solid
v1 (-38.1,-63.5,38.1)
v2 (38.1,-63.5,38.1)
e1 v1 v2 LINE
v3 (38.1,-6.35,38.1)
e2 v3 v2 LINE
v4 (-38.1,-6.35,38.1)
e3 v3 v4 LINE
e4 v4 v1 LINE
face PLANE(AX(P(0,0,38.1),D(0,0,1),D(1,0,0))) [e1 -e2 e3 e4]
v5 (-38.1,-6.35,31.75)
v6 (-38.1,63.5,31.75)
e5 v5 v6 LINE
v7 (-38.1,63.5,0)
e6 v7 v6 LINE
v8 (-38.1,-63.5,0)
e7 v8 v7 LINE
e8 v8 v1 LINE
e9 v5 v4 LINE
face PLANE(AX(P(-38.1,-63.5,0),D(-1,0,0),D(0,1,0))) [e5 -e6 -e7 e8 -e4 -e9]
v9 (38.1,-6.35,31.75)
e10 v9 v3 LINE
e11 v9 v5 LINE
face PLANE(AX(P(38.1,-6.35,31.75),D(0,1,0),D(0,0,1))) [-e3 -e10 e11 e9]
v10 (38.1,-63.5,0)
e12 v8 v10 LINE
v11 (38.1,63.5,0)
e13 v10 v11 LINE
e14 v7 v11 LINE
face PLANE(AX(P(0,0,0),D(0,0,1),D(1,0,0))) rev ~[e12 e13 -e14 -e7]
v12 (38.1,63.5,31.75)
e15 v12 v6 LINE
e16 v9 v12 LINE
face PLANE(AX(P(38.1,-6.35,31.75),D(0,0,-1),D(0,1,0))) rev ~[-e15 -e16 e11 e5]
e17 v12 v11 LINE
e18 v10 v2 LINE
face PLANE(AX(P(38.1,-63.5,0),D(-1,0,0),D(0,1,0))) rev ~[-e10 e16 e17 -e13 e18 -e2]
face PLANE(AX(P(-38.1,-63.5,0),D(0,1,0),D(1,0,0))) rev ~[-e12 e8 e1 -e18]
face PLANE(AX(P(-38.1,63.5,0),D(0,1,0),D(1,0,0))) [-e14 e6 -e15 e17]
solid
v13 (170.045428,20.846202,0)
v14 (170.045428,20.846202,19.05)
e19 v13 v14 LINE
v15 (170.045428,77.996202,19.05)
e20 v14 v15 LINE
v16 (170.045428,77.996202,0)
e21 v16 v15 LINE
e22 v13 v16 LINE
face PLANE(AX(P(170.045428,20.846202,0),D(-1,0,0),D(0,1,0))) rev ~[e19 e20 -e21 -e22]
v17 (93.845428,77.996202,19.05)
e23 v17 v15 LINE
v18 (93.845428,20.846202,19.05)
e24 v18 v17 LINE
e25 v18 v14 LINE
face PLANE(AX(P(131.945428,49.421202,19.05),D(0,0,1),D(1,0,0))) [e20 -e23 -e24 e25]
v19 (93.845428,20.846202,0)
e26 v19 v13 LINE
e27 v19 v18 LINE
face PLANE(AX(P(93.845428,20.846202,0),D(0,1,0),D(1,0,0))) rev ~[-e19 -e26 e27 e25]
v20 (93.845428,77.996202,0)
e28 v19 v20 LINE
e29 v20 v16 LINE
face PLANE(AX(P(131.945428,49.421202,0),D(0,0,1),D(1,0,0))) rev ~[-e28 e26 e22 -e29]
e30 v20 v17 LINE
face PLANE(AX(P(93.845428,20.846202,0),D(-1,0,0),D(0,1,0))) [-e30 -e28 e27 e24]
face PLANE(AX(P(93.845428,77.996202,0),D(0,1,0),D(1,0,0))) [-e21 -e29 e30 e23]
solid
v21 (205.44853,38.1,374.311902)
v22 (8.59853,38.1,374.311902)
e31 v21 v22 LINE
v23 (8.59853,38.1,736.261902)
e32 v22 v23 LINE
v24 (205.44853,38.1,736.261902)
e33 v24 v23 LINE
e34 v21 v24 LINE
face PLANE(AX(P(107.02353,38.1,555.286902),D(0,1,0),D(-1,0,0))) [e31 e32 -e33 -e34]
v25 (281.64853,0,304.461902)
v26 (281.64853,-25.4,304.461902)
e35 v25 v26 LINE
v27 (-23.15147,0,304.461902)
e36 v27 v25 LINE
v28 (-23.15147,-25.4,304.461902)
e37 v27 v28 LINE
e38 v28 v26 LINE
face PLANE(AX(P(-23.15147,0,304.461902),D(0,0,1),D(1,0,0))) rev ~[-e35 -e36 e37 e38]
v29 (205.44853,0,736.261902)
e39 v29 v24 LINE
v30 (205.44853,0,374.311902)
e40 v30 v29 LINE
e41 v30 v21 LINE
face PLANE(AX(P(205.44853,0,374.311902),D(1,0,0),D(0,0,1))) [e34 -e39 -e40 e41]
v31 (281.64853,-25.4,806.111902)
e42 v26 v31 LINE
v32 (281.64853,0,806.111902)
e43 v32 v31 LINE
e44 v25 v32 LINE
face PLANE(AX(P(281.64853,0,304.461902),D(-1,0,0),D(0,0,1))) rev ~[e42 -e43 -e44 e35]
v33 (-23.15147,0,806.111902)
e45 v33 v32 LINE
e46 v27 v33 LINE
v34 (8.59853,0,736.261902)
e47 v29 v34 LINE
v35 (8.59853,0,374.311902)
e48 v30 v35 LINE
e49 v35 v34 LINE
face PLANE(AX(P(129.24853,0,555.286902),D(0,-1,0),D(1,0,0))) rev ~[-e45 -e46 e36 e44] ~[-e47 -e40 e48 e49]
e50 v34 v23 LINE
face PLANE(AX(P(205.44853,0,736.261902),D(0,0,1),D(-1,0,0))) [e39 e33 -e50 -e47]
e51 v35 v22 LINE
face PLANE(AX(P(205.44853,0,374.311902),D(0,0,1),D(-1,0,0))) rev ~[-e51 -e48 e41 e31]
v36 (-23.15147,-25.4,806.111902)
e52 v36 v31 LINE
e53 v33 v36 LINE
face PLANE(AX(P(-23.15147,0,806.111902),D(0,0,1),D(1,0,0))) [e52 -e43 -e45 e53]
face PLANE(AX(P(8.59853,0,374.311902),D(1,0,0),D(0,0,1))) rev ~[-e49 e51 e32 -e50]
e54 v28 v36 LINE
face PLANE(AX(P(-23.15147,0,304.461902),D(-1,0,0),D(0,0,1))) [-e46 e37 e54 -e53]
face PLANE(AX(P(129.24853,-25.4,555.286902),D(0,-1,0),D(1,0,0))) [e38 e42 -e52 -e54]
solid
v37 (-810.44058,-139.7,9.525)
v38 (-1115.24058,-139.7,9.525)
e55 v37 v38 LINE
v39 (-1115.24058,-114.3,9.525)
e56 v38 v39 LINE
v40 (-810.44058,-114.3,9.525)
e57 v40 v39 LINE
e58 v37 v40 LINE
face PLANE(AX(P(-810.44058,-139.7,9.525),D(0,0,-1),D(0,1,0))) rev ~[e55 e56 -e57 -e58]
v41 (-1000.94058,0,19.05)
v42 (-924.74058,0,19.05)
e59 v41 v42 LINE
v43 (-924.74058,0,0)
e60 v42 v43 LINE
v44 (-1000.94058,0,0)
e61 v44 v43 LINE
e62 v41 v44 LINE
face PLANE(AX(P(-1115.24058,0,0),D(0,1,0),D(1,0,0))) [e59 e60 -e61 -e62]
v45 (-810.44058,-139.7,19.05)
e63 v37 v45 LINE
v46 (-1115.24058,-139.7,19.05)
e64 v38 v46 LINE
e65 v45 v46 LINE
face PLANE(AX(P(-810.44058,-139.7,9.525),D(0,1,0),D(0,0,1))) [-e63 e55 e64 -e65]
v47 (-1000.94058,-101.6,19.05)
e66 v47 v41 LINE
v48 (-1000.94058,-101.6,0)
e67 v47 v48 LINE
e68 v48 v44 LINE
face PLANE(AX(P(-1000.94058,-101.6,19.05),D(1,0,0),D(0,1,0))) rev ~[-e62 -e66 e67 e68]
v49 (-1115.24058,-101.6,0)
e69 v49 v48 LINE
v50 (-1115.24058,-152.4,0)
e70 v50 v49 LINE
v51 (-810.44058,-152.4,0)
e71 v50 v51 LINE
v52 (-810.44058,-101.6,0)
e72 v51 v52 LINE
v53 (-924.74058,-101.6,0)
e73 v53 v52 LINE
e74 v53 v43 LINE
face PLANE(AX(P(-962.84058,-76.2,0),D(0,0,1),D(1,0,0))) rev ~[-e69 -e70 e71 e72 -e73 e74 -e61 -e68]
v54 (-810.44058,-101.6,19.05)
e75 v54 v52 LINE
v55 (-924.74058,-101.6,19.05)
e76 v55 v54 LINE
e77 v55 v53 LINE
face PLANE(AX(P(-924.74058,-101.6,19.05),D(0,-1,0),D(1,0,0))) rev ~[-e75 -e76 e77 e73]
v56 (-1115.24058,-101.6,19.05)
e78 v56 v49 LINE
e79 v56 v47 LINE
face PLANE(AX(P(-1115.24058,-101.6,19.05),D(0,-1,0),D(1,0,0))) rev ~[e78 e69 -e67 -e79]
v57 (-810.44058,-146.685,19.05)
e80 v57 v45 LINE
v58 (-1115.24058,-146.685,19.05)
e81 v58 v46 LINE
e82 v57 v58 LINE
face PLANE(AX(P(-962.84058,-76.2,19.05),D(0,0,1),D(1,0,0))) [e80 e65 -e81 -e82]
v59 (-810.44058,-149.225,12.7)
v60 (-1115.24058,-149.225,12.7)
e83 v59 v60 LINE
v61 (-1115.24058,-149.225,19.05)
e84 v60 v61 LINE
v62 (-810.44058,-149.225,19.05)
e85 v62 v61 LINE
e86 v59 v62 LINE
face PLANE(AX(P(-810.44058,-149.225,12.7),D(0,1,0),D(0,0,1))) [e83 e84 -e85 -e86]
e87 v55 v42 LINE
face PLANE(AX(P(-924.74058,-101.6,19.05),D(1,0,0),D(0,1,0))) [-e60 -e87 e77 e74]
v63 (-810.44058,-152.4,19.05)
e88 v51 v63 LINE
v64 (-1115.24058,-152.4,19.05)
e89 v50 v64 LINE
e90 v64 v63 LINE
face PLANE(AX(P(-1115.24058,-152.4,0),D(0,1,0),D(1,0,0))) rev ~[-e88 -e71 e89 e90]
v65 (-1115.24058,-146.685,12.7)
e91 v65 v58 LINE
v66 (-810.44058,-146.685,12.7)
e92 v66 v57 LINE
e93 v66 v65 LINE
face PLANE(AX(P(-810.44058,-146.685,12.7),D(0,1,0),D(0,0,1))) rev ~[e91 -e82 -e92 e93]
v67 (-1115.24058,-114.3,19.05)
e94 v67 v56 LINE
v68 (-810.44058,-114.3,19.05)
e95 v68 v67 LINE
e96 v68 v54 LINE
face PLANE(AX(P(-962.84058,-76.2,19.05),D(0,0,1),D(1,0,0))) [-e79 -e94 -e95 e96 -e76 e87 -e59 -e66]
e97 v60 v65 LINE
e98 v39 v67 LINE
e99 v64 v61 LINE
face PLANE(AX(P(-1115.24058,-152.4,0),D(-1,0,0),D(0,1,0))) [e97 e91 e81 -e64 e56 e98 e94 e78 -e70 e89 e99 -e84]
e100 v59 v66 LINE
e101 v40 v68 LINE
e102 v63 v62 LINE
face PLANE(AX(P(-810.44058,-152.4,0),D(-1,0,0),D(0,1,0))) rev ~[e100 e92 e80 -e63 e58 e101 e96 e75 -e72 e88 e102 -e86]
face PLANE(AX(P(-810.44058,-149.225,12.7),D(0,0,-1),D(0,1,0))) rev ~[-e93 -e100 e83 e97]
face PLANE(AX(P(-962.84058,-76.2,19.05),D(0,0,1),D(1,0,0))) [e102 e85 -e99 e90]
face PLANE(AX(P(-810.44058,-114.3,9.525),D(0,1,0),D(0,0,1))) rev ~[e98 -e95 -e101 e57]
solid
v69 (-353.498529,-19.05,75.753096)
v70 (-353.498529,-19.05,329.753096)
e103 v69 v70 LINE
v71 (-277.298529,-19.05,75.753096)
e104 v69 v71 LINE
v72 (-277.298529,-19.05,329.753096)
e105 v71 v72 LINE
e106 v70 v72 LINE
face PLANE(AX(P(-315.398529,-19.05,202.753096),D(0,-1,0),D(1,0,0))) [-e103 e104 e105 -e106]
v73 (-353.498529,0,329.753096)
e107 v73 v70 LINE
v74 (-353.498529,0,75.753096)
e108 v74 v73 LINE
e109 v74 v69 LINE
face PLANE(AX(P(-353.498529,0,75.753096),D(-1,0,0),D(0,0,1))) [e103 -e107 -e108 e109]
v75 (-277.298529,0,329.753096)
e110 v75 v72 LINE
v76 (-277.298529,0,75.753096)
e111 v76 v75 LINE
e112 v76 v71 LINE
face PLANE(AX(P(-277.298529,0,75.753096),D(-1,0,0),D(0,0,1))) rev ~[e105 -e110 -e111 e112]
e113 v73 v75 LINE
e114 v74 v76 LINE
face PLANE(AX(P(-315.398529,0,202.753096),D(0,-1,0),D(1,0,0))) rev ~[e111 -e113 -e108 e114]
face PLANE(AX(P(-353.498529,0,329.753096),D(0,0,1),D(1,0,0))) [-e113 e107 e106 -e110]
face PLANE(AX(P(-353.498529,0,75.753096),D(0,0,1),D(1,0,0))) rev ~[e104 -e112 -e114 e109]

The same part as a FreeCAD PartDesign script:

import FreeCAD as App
import Part
import Sketcher
Q = App.Units.Quantity


def add_polygon(sketch, points):
    """Adds a closed chain of lines whose ends are joined by coincident constraints."""
    first, n = sketch.GeometryCount, len(points)
    for a, b in zip(points, points[1:] + points[:1]):
        sketch.addGeometry(Part.LineSegment(App.Vector(*a, 0), App.Vector(*b, 0)), False)
    for i in range(n):
        sketch.addConstraint(Sketcher.Constraint("Coincident", first + i, 2, first + (i + 1) % n, 1))

doc = App.newDocument("Part")
params = doc.addObject("Spreadsheet::Sheet", "Params")
for row, (alias, value) in enumerate([
    ("sketch1_width", "3 in"),
    ("sketch1_height", "5 in"),
    ("pad1_length", "1.5 in"),
    ("sketch2_width", "2.75 in"),
    ("sketch2_height", "0.25 in"),
    ("sketch3_width", "2.75 in"),
    ("sketch3_height", "0.25 in"),
    ("sketch4_width", "3 in"),
    ("sketch4_height", "2.25 in"),
    ("pad3_length", "0.75 in"),
    ("sketch5_width", "12 in"),
    ("sketch5_height", "6 in"),
    ("pad4_length", "0.75 in"),
    ("sketch6_height", "4 in"),
    ("sketch6_width", "4.5 in"),
    ("sketch7_width", "1 in"),
    ("sketch7_width2", "0.1 in"),
    ("sketch7_height", "0.25 in"),
    ("sketch7_height2", "0.375 in"),
    ("sketch8_width", "3 in"),
    ("sketch8_height", "10 in"),
    ("pad5_length", "0.75 in"),
    ("sketch9_width", "12 in"),
    ("sketch9_height", "19.75 in"),
    ("pad6_length", "1 in"),
    ("sketch10_width", "7.75 in"),
    ("sketch10_height", "14.25 in"),
    ("pad7_length", "1.5 in"),
], start=1):
    params.set(f"A{row}", alias)
    params.set(f"B{row}", "=" + value)
    params.setAlias(f"B{row}", alias)

body = doc.addObject("PartDesign::Body", "Body")

sketch1 = body.newObject("Sketcher::SketchObject", "Sketch")
sketch1.AttachmentSupport = (doc.getObject("XY_Plane"), [""])
sketch1.MapMode = "FlatFace"
add_polygon(sketch1, [(-38, 64), (-38, -64), (38, -64), (38, 64)])
sketch1.addConstraint(Sketcher.Constraint("Vertical", 0))
sketch1.addConstraint(Sketcher.Constraint("Horizontal", 1))
sketch1.addConstraint(Sketcher.Constraint("Vertical", 2))
sketch1.addConstraint(Sketcher.Constraint("Horizontal", 3))
sketch1.addConstraint(Sketcher.Constraint("Symmetric", 0, 2, 2, 2, -1, 1))
sketch1.addConstraint(Sketcher.Constraint("DistanceX", 1, 1, 1, 2, Q("3 in")))
sketch1.addConstraint(Sketcher.Constraint("DistanceY", 0, 2, 0, 1, Q("5 in")))
sketch1.setExpression("Constraints[9]", "Params.sketch1_width")
sketch1.setExpression("Constraints[10]", "Params.sketch1_height")
pad1 = body.newObject("PartDesign::Pad", "Pad")
pad1.Profile = sketch1
pad1.setExpression("Length", "Params.pad1_length")

sketch2 = body.newObject("Sketcher::SketchObject", "Sketch001")
sketch2.AttachmentSupport = (doc.getObject("YZ_Plane"), [""])
sketch2.MapMode = "FlatFace"
sketch2.AttachmentOffset = App.Placement(App.Vector(0, 0, 1.5 * 25.4), App.Rotation())
add_polygon(sketch2, [(-6, 38), (-6, 32), (64, 32), (64, 38)])
sketch2.addConstraint(Sketcher.Constraint("Vertical", 0))
sketch2.addConstraint(Sketcher.Constraint("Horizontal", 1))
sketch2.addConstraint(Sketcher.Constraint("Vertical", 2))
sketch2.addConstraint(Sketcher.Constraint("Horizontal", 3))
sketch2.addConstraint(Sketcher.Constraint("DistanceX", 1, 1, 1, 2, Q("2.75 in")))
sketch2.addConstraint(Sketcher.Constraint("DistanceY", 0, 2, 0, 1, Q("0.25 in")))
sketch2.addConstraint(Sketcher.Constraint("DistanceX", -1, 1, 1, 2, Q("2.5 in")))
sketch2.addConstraint(Sketcher.Constraint("DistanceY", -1, 1, 2, 2, Q("1.5 in")))
sketch2.setExpression("Constraints[8]", "Params.sketch2_width")
sketch2.setExpression("Constraints[9]", "Params.sketch2_height")
pad2 = body.newObject("PartDesign::Pad", "Pad001")
pad2.Profile = sketch2
pad2.Type = "UpToLast"
pad2.Reversed = True

sketch3 = body.newObject("Sketcher::SketchObject", "Sketch002")
sketch3.AttachmentSupport = (doc.getObject("YZ_Plane"), [""])
sketch3.MapMode = "FlatFace"
sketch3.AttachmentOffset = App.Placement(App.Vector(0, 0, 1.5 * 25.4), App.Rotation())
add_polygon(sketch3, [(-6, 38), (-6, 32), (64, 32), (64, 38)])
sketch3.addConstraint(Sketcher.Constraint("Vertical", 0))
sketch3.addConstraint(Sketcher.Constraint("Horizontal", 1))
sketch3.addConstraint(Sketcher.Constraint("Vertical", 2))
sketch3.addConstraint(Sketcher.Constraint("Horizontal", 3))
sketch3.addConstraint(Sketcher.Constraint("DistanceX", 1, 1, 1, 2, Q("2.75 in")))
sketch3.addConstraint(Sketcher.Constraint("DistanceY", 0, 2, 0, 1, Q("0.25 in")))
sketch3.addConstraint(Sketcher.Constraint("DistanceX", -1, 1, 1, 2, Q("2.5 in")))
sketch3.addConstraint(Sketcher.Constraint("DistanceY", -1, 1, 2, 2, Q("1.5 in")))
sketch3.setExpression("Constraints[8]", "Params.sketch3_width")
sketch3.setExpression("Constraints[9]", "Params.sketch3_height")
pocket1 = body.newObject("PartDesign::Pocket", "Pocket")
pocket1.Profile = sketch3
pocket1.Type = "ThroughAll"
body2 = doc.addObject("PartDesign::Body", "Body001")

sketch4 = body2.newObject("Sketcher::SketchObject", "Sketch003")
sketch4.AttachmentSupport = (doc.getObject("XY_Plane001"), [""])
sketch4.MapMode = "FlatFace"
add_polygon(sketch4, [(94, 78), (94, 21), (170, 21), (170, 78)])
sketch4.addConstraint(Sketcher.Constraint("Vertical", 0))
sketch4.addConstraint(Sketcher.Constraint("Horizontal", 1))
sketch4.addConstraint(Sketcher.Constraint("Vertical", 2))
sketch4.addConstraint(Sketcher.Constraint("Horizontal", 3))
sketch4.addConstraint(Sketcher.Constraint("DistanceX", 1, 1, 1, 2, Q("3 in")))
sketch4.addConstraint(Sketcher.Constraint("DistanceY", 0, 2, 0, 1, Q("2.25 in")))
sketch4.addConstraint(Sketcher.Constraint("DistanceY", -1, 1, 2, 2, Q("77.996202 mm")))
sketch4.addConstraint(Sketcher.Constraint("DistanceX", -1, 1, 0, 2, Q("93.845428 mm")))
sketch4.setExpression("Constraints[8]", "Params.sketch4_width")
sketch4.setExpression("Constraints[9]", "Params.sketch4_height")
pad3 = body2.newObject("PartDesign::Pad", "Pad002")
pad3.Profile = sketch4
pad3.setExpression("Length", "Params.pad3_length")
body3 = doc.addObject("PartDesign::Body", "Body002")

sketch5 = body3.newObject("Sketcher::SketchObject", "Sketch004")
sketch5.AttachmentSupport = (doc.getObject("XY_Plane002"), [""])
sketch5.MapMode = "FlatFace"
add_polygon(sketch5, [(-1115, 0), (-1115, -152), (-810, -152), (-810, 0)])
sketch5.addConstraint(Sketcher.Constraint("Vertical", 0))
sketch5.addConstraint(Sketcher.Constraint("Horizontal", 1))
sketch5.addConstraint(Sketcher.Constraint("Vertical", 2))
sketch5.addConstraint(Sketcher.Constraint("Horizontal", 3))
sketch5.addConstraint(Sketcher.Constraint("PointOnObject", 2, 2, -1))
sketch5.addConstraint(Sketcher.Constraint("DistanceX", 1, 1, 1, 2, Q("12 in")))
sketch5.addConstraint(Sketcher.Constraint("DistanceY", 0, 2, 0, 1, Q("6 in")))
sketch5.addConstraint(Sketcher.Constraint("DistanceX", 0, 2, -1, 1, Q("1115.24058 mm")))
sketch5.setExpression("Constraints[9]", "Params.sketch5_width")
sketch5.setExpression("Constraints[10]", "Params.sketch5_height")
pad4 = body3.newObject("PartDesign::Pad", "Pad003")
pad4.Profile = sketch5
pad4.setExpression("Length", "Params.pad4_length")

sketch6 = body3.newObject("Sketcher::SketchObject", "Sketch005")
sketch6.AttachmentSupport = (doc.getObject("XY_Plane002"), [""])
sketch6.MapMode = "FlatFace"
sketch6.AttachmentOffset = App.Placement(App.Vector(0, 0, 0.75 * 25.4), App.Rotation())
add_polygon(sketch6, [(-925, 0), (-925, -102), (-810, -102), (-810, 0)])
add_polygon(sketch6, [(-1115, 0), (-1115, -102), (-1001, -102), (-1001, 0)])
sketch6.addConstraint(Sketcher.Constraint("Vertical", 0))
sketch6.addConstraint(Sketcher.Constraint("Horizontal", 1))
sketch6.addConstraint(Sketcher.Constraint("Vertical", 2))
sketch6.addConstraint(Sketcher.Constraint("Horizontal", 3))
sketch6.addConstraint(Sketcher.Constraint("Vertical", 4))
sketch6.addConstraint(Sketcher.Constraint("Horizontal", 5))
sketch6.addConstraint(Sketcher.Constraint("Vertical", 6))
sketch6.addConstraint(Sketcher.Constraint("Horizontal", 7))
sketch6.addConstraint(Sketcher.Constraint("PointOnObject", 2, 2, -1))
sketch6.addConstraint(Sketcher.Constraint("PointOnObject", 6, 2, -1))
sketch6.addConstraint(Sketcher.Constraint("Horizontal", 1, 2, 4, 2))
sketch6.addConstraint(Sketcher.Constraint("Equal", 3, 5))
sketch6.addConstraint(Sketcher.Constraint("DistanceY", 0, 2, 0, 1, Q("4 in")))
sketch6.addConstraint(Sketcher.Constraint("DistanceX", 1, 1, 1, 2, Q("4.5 in")))
sketch6.addConstraint(Sketcher.Constraint("DistanceX", 4, 2, 1, 2, Q("12 in")))
sketch6.addConstraint(Sketcher.Constraint("DistanceX", 0, 2, -1, 1, Q("924.74058 mm")))
sketch6.setExpression("Constraints[20]", "Params.sketch6_height")
sketch6.setExpression("Constraints[21]", "Params.sketch6_width")
pocket2 = body3.newObject("PartDesign::Pocket", "Pocket001")
pocket2.Profile = sketch6
pocket2.Type = "ThroughAll"

sketch7 = body3.newObject("Sketcher::SketchObject", "Sketch006")
sketch7.AttachmentSupport = (doc.getObject("YZ_Plane002"), [""])
sketch7.MapMode = "FlatFace"
sketch7.AttachmentOffset = App.Placement(App.Vector(0, 0, -810.44058), App.Rotation())
add_polygon(sketch7, [(-149.2, 19.1), (-149.2, 12.7), (-146.7, 12.7), (-146.7, 19.1)])
add_polygon(sketch7, [(-139.7, 19.1), (-139.7, 9.5), (-114.3, 9.5), (-114.3, 19.1)])
sketch7.addConstraint(Sketcher.Constraint("Vertical", 0))
sketch7.addConstraint(Sketcher.Constraint("Horizontal", 1))
sketch7.addConstraint(Sketcher.Constraint("Vertical", 2))
sketch7.addConstraint(Sketcher.Constraint("Horizontal", 3))
sketch7.addConstraint(Sketcher.Constraint("Vertical", 4))
sketch7.addConstraint(Sketcher.Constraint("Horizontal", 5))
sketch7.addConstraint(Sketcher.Constraint("Vertical", 6))
sketch7.addConstraint(Sketcher.Constraint("Horizontal", 7))
sketch7.addConstraint(Sketcher.Constraint("Horizontal", 3, 2, 6, 2))
sketch7.addConstraint(Sketcher.Constraint("DistanceX", 5, 1, 5, 2, Q("1 in")))
sketch7.addConstraint(Sketcher.Constraint("DistanceX", 1, 1, 1, 2, Q("0.1 in")))
sketch7.addConstraint(Sketcher.Constraint("DistanceY", 0, 2, 0, 1, Q("0.25 in")))
sketch7.addConstraint(Sketcher.Constraint("DistanceY", -1, 1, 0, 2, Q("0.5 in")))
sketch7.addConstraint(Sketcher.Constraint("DistanceX", 4, 2, -1, 1, Q("5.5 in")))
sketch7.addConstraint(Sketcher.Constraint("DistanceY", 4, 2, 4, 1, Q("0.375 in")))
sketch7.addConstraint(Sketcher.Constraint("DistanceX", 0, 2, -1, 1, Q("5.875 in")))
sketch7.setExpression("Constraints[17]", "Params.sketch7_width")
sketch7.setExpression("Constraints[18]", "Params.sketch7_width2")
sketch7.setExpression("Constraints[19]", "Params.sketch7_height")
sketch7.setExpression("Constraints[22]", "Params.sketch7_height2")
pocket3 = body3.newObject("PartDesign::Pocket", "Pocket002")
pocket3.Profile = sketch7
pocket3.Type = "ThroughAll"
body4 = doc.addObject("PartDesign::Body", "Body003")

sketch8 = body4.newObject("Sketcher::SketchObject", "Sketch007")
sketch8.AttachmentSupport = (doc.getObject("XZ_Plane003"), [""])
sketch8.MapMode = "FlatFace"
add_polygon(sketch8, [(-353, 330), (-353, 76), (-277, 76), (-277, 330)])
sketch8.addConstraint(Sketcher.Constraint("Vertical", 0))
sketch8.addConstraint(Sketcher.Constraint("Horizontal", 1))
sketch8.addConstraint(Sketcher.Constraint("Vertical", 2))
sketch8.addConstraint(Sketcher.Constraint("Horizontal", 3))
sketch8.addConstraint(Sketcher.Constraint("DistanceX", 1, 1, 1, 2, Q("3 in")))
sketch8.addConstraint(Sketcher.Constraint("DistanceY", 0, 2, 0, 1, Q("10 in")))
sketch8.addConstraint(Sketcher.Constraint("DistanceX", 0, 2, -1, 1, Q("353.498529 mm")))
sketch8.addConstraint(Sketcher.Constraint("DistanceY", -1, 1, 0, 2, Q("75.753096 mm")))
sketch8.setExpression("Constraints[8]", "Params.sketch8_width")
sketch8.setExpression("Constraints[9]", "Params.sketch8_height")
pad5 = body4.newObject("PartDesign::Pad", "Pad004")
pad5.Profile = sketch8
pad5.setExpression("Length", "Params.pad5_length")
body5 = doc.addObject("PartDesign::Body", "Body004")

sketch9 = body5.newObject("Sketcher::SketchObject", "Sketch008")
sketch9.AttachmentSupport = (doc.getObject("XZ_Plane004"), [""])
sketch9.MapMode = "FlatFace"
add_polygon(sketch9, [(-23, 806), (-23, 304), (282, 304), (282, 806)])
sketch9.addConstraint(Sketcher.Constraint("Vertical", 0))
sketch9.addConstraint(Sketcher.Constraint("Horizontal", 1))
sketch9.addConstraint(Sketcher.Constraint("Vertical", 2))
sketch9.addConstraint(Sketcher.Constraint("Horizontal", 3))
sketch9.addConstraint(Sketcher.Constraint("DistanceX", 1, 1, 1, 2, Q("12 in")))
sketch9.addConstraint(Sketcher.Constraint("DistanceY", 0, 2, 0, 1, Q("19.75 in")))
sketch9.addConstraint(Sketcher.Constraint("DistanceY", -1, 1, 0, 2, Q("304.461902 mm")))
sketch9.addConstraint(Sketcher.Constraint("DistanceX", 0, 2, -1, 1, Q("23.15147 mm")))
sketch9.setExpression("Constraints[8]", "Params.sketch9_width")
sketch9.setExpression("Constraints[9]", "Params.sketch9_height")
pad6 = body5.newObject("PartDesign::Pad", "Pad005")
pad6.Profile = sketch9
pad6.setExpression("Length", "Params.pad6_length")

sketch10 = body5.newObject("Sketcher::SketchObject", "Sketch009")
sketch10.AttachmentSupport = (doc.getObject("XZ_Plane004"), [""])
sketch10.MapMode = "FlatFace"
add_polygon(sketch10, [(205, 736), (205, 374), (9, 374), (9, 736)])
sketch10.addConstraint(Sketcher.Constraint("Vertical", 0))
sketch10.addConstraint(Sketcher.Constraint("Horizontal", 1))
sketch10.addConstraint(Sketcher.Constraint("Vertical", 2))
sketch10.addConstraint(Sketcher.Constraint("Horizontal", 3))
sketch10.addConstraint(Sketcher.Constraint("DistanceX", 1, 2, 1, 1, Q("7.75 in")))
sketch10.addConstraint(Sketcher.Constraint("DistanceY", 0, 2, 0, 1, Q("14.25 in")))
sketch10.addConstraint(Sketcher.Constraint("DistanceY", -1, 1, 0, 2, Q("374.311902 mm")))
sketch10.addConstraint(Sketcher.Constraint("DistanceX", -1, 1, 0, 2, Q("205.44853 mm")))
sketch10.setExpression("Constraints[8]", "Params.sketch10_width")
sketch10.setExpression("Constraints[9]", "Params.sketch10_height")
pad7 = body5.newObject("PartDesign::Pad", "Pad006")
pad7.Profile = sketch10
pad7.setExpression("Length", "Params.pad7_length")
pad7.Reversed = True

doc.recompute()
